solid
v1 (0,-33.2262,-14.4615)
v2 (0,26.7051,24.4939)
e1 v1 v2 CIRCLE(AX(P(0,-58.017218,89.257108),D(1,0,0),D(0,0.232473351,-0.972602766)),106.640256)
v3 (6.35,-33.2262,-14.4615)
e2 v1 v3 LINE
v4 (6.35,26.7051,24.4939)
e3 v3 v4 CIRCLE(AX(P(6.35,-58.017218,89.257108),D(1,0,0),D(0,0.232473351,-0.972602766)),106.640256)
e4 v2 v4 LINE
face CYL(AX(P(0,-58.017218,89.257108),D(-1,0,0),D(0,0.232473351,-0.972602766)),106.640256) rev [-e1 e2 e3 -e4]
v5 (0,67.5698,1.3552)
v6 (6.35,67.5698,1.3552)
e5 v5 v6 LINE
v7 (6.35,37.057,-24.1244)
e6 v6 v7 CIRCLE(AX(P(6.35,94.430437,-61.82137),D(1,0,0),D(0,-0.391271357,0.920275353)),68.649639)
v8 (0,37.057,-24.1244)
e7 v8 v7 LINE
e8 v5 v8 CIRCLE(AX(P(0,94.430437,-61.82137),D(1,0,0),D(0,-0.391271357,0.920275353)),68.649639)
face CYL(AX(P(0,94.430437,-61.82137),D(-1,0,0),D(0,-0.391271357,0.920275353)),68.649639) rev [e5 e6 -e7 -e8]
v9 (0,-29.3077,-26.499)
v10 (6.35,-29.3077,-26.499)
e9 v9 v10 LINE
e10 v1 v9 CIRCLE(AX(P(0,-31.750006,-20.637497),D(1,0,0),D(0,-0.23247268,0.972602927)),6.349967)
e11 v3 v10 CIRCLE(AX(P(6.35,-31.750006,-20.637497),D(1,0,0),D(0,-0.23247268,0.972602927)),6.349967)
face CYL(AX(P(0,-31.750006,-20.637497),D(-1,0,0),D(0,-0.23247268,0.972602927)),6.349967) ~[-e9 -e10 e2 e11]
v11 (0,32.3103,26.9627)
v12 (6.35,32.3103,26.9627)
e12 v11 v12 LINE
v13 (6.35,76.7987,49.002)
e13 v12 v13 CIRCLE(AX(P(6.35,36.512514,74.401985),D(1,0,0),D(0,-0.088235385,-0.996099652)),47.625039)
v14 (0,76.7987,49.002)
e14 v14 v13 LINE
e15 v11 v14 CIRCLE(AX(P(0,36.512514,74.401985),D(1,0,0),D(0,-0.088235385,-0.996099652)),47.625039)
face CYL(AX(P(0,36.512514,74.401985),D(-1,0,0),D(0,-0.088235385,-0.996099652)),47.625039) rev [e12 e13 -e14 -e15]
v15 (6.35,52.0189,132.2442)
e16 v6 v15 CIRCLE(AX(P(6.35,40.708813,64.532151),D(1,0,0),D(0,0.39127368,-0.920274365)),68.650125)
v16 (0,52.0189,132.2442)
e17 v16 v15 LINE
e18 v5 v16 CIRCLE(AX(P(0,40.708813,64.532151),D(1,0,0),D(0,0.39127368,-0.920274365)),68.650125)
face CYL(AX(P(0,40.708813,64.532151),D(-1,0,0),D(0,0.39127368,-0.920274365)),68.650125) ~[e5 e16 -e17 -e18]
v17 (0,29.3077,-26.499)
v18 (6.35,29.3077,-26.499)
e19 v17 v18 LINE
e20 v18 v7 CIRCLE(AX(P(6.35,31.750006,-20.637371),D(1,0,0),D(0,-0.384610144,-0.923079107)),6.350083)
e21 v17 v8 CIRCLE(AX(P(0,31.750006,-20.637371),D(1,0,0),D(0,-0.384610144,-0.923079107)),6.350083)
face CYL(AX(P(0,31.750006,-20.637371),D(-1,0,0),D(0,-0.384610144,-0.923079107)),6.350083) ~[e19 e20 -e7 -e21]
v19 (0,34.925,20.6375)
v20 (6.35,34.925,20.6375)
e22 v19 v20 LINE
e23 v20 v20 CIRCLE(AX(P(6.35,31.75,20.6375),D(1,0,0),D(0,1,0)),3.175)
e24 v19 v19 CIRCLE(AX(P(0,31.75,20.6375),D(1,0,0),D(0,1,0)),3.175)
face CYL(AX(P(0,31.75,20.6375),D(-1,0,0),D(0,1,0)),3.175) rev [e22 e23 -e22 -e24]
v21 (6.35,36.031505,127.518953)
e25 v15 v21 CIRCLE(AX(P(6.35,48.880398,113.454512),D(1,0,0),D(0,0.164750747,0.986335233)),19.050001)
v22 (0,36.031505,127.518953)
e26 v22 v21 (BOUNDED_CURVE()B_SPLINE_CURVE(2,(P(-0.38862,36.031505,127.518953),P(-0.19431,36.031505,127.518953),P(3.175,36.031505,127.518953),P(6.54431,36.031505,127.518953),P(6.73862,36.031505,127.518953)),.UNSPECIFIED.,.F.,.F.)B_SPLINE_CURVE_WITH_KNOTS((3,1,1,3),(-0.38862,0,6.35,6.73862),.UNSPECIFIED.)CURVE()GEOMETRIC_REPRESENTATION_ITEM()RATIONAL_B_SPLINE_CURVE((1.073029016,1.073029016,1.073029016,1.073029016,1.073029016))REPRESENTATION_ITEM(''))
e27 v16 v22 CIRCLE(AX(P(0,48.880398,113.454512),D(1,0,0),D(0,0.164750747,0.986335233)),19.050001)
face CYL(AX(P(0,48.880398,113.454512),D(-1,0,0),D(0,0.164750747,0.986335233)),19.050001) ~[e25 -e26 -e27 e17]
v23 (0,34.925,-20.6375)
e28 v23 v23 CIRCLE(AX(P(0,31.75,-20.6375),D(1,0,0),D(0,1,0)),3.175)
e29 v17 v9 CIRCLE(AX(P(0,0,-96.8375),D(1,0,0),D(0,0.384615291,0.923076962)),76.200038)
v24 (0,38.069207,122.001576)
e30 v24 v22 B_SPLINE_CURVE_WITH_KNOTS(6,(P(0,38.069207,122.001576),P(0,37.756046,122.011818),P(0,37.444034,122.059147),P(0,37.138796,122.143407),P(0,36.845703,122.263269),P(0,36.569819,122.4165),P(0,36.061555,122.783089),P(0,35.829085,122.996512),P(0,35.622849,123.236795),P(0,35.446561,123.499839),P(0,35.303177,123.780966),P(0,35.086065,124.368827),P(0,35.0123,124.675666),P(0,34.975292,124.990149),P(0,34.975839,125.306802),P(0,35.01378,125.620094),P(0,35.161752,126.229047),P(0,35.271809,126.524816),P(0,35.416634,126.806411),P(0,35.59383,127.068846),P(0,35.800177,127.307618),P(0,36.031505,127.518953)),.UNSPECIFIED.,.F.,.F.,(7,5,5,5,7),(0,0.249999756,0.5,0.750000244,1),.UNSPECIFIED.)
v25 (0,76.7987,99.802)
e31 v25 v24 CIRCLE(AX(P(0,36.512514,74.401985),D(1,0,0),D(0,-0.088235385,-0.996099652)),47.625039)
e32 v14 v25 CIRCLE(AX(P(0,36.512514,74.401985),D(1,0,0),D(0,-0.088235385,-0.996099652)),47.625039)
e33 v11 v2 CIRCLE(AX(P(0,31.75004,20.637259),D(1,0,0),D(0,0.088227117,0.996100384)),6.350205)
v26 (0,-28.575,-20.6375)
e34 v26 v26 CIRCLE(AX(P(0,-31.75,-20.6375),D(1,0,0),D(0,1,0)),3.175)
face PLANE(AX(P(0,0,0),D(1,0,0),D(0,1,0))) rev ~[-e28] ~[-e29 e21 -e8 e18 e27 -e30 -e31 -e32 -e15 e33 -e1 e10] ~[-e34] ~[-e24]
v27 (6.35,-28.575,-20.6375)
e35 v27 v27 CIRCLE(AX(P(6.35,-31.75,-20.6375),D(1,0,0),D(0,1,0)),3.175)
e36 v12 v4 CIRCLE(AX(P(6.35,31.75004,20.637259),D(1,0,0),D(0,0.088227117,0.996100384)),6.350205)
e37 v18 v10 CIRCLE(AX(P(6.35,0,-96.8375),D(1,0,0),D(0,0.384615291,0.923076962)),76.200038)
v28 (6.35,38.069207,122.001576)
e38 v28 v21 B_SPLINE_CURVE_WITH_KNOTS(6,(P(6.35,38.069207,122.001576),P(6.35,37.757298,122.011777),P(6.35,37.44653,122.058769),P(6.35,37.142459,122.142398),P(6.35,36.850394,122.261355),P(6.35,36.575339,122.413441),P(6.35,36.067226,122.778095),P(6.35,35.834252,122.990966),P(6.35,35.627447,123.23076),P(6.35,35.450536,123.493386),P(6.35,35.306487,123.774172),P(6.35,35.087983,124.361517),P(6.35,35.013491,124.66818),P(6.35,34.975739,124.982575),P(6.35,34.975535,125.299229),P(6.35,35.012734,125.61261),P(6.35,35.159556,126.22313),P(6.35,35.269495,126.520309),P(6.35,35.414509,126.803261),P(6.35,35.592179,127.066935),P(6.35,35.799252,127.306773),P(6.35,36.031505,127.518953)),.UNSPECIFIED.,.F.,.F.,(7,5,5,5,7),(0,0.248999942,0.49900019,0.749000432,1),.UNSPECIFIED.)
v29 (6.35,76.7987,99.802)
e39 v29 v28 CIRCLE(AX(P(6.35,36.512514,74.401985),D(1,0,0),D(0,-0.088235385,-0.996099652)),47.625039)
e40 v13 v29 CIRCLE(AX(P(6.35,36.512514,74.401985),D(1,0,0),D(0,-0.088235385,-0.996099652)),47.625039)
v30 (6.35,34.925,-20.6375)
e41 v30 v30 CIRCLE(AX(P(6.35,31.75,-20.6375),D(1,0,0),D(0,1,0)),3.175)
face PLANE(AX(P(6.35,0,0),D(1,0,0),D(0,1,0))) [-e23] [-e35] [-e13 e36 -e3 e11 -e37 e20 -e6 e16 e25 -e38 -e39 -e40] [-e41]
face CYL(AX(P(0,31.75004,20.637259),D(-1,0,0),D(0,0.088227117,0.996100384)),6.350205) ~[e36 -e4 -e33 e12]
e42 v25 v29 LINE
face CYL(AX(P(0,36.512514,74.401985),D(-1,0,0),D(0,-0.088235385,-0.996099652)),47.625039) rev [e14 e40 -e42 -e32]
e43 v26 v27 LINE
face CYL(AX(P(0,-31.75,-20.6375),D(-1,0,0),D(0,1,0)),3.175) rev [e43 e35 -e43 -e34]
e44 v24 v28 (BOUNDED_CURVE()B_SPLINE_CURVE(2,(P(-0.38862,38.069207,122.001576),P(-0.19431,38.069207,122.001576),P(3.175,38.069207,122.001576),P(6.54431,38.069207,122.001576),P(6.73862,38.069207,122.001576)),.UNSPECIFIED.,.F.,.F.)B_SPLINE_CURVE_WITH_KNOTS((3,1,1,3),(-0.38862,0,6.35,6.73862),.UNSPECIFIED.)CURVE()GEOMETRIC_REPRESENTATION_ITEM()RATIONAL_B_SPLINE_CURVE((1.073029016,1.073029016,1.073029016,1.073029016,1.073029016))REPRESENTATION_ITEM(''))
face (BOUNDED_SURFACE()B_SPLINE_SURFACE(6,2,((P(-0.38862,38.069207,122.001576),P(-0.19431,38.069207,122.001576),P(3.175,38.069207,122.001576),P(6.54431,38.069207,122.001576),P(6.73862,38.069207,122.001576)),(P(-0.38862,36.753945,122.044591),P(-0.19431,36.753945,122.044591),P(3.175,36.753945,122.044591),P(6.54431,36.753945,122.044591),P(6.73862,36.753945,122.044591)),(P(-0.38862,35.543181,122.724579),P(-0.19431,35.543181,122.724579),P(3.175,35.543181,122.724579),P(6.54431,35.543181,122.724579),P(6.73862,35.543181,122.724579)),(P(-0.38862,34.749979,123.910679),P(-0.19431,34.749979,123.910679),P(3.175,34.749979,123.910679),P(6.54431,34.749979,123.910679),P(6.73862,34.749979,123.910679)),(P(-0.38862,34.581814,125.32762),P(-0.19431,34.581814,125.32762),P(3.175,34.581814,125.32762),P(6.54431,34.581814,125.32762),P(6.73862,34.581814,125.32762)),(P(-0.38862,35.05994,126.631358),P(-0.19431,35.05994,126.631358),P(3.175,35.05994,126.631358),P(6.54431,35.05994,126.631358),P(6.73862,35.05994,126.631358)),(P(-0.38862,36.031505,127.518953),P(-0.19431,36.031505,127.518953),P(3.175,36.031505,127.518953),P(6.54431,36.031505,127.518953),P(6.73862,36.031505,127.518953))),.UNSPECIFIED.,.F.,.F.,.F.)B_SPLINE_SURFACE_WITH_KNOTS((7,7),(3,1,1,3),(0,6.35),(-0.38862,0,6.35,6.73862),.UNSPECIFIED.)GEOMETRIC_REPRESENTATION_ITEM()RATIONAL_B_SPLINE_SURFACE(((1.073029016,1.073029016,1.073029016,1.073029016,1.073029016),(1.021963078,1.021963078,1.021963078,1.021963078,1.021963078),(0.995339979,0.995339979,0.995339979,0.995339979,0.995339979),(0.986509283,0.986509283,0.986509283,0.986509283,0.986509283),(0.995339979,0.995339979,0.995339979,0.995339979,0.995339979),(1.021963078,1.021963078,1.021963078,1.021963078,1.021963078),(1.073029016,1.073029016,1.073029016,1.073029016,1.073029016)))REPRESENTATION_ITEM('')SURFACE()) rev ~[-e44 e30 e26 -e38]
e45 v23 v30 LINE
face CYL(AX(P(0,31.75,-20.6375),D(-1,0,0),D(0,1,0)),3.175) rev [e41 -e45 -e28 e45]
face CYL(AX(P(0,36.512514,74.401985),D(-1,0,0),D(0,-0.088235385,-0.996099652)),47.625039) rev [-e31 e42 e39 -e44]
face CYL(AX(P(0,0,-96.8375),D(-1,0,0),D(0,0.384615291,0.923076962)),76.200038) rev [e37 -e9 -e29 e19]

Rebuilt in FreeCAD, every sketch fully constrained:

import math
import FreeCAD as App
import Part
import Sketcher

V = App.Vector
Q = App.Units.Quantity


def edges_at(feature, points):
    """Names of the edges that pass closest to the given points."""
    edges = feature.Shape.Edges
    near = lambda p: min(range(len(edges)), key=lambda i: edges[i].distToShape(Part.Vertex(*p))[0])
    return sorted({f"Edge{near(p) + 1}" for p in points})

doc = App.newDocument("Part")
body = doc.addObject("PartDesign::Body", "Body")

# Sketch on YZ plane
sketch1 = body.newObject("Sketcher::SketchObject", "Sketch")
sketch1.AttachmentSupport = (doc.getObject("YZ_Plane"), [""])
sketch1.MapMode = "FlatFace"
sketch1.addGeometry(Part.ArcOfCircle(Part.Circle(V(36.5, 74.4, 0), V(0, 0, 1), 47.6), math.radians(-95), math.radians(96)), False)
sketch1.addGeometry(Part.ArcOfCircle(Part.Circle(V(31.8, 20.6, 0), V(0, 0, 1), 6.3), math.radians(85), math.radians(143)), False)
sketch1.addGeometry(Part.ArcOfCircle(Part.Circle(V(-58, 89.3, 0), V(0, 0, 1), 106.6), math.radians(-77), math.radians(-37)), False)
sketch1.addGeometry(Part.ArcOfCircle(Part.Circle(V(-31.8, -20.6, 0), V(0, 0, 1), 6.3), math.radians(103), math.radians(293)), False)
sketch1.addGeometry(Part.ArcOfCircle(Part.Circle(V(0, -96.8, 0), V(0, 0, 1), 76.2), math.radians(67), math.radians(113)), False)
sketch1.addGeometry(Part.ArcOfCircle(Part.Circle(V(31.8, -20.6, 0), V(0, 0, 1), 6.3), math.radians(-113), math.radians(-33)), False)
sketch1.addGeometry(Part.ArcOfCircle(Part.Circle(V(94.4, -61.8, 0), V(0, 0, 1), 68.7), math.radians(113), math.radians(147)), False)
sketch1.addGeometry(Part.ArcOfCircle(Part.Circle(V(40.7, 64.5, 0), V(0, 0, 1), 68.7), math.radians(-67), math.radians(81)), False)
sketch1.addGeometry(Part.ArcOfCircle(Part.Circle(V(48.9, 113.5, 0), V(0, 0, 1), 19.1), math.radians(81), math.radians(154)), False)
sketch1.addGeometry(Part.Circle(V(-31.8, -20.6, 0), V(0, 0, 1), 3.2), False)
sketch1.addGeometry(Part.Circle(V(31.8, -20.6, 0), V(0, 0, 1), 3.2), False)
sketch1.addGeometry(Part.Circle(V(31.8, 20.6, 0), V(0, 0, 1), 3.2), False)
sketch1.addConstraint(Sketcher.Constraint("Tangent", 0, 1, 1, 1))
sketch1.addConstraint(Sketcher.Constraint("Tangent", 1, 2, 2, 2))
sketch1.addConstraint(Sketcher.Constraint("Tangent", 2, 1, 3, 1))
sketch1.addConstraint(Sketcher.Constraint("Tangent", 3, 2, 4, 2))
sketch1.addConstraint(Sketcher.Constraint("Tangent", 4, 1, 5, 1))
sketch1.addConstraint(Sketcher.Constraint("Tangent", 5, 2, 6, 2))
sketch1.addConstraint(Sketcher.Constraint("Tangent", 6, 1, 7, 1))
sketch1.addConstraint(Sketcher.Constraint("Tangent", 7, 2, 8, 1))
sketch1.addConstraint(Sketcher.Constraint("Coincident", 8, 2, 0, 2))
sketch1.addConstraint(Sketcher.Constraint("Coincident", 9, 3, 3, 3))
sketch1.addConstraint(Sketcher.Constraint("Coincident", 10, 3, 5, 3))
sketch1.addConstraint(Sketcher.Constraint("Coincident", 11, 3, 1, 3))
sketch1.addConstraint(Sketcher.Constraint("Equal", 1, 3))
sketch1.addConstraint(Sketcher.Constraint("Equal", 3, 5))
sketch1.addConstraint(Sketcher.Constraint("Equal", 6, 7))
sketch1.addConstraint(Sketcher.Constraint("Equal", 9, 10))
sketch1.addConstraint(Sketcher.Constraint("Equal", 10, 11))
sketch1.addConstraint(Sketcher.Constraint("Symmetric", 1, 3, 3, 3, -1, 1))
sketch1.addConstraint(Sketcher.Constraint("Symmetric", 3, 3, 5, 3, -2))
sketch1.addConstraint(Sketcher.Constraint("Vertical", 11, 3, 8, 2))
sketch1.addConstraint(Sketcher.Constraint("Diameter", 9, Q("0.25 in")))
sketch1.addConstraint(Sketcher.Constraint("Radius", 1, Q("0.25 in")))
sketch1.addConstraint(Sketcher.Constraint("Radius", 8, Q("0.75 in")))
sketch1.addConstraint(Sketcher.Constraint("Radius", 0, Q("1.875 in")))
sketch1.addConstraint(Sketcher.Constraint("Radius", 4, Q("3 in")))
sketch1.addConstraint(Sketcher.Constraint("DistanceX", 3, 3, 1, 3, Q("2.5 in")))
sketch1.addConstraint(Sketcher.Constraint("DistanceX", 1, 3, 0, 3, Q("0.1875 in")))
sketch1.addConstraint(Sketcher.Constraint("DistanceY", 3, 3, 1, 3, Q("1.625 in")))
sketch1.addConstraint(Sketcher.Constraint("Radius", 2, Q("106.6405 mm")))
sketch1.addConstraint(Sketcher.Constraint("Radius", 6, Q("68.6501 mm")))
sketch1.addConstraint(Sketcher.Constraint("DistanceY", 0, 3, 8, 3, Q("1.5375 in")))
sketch1.addConstraint(Sketcher.Constraint("DistanceY", 0, 1, 7, 3, Q("1.4791 in")))
pad1 = body.newObject("PartDesign::Pad", "Pad")
pad1.Profile = sketch1
pad1.Length = Q("0.25 in")
doc.recompute()

fillet = body.newObject("PartDesign::Fillet", "Fillet")
fillet.Base = (pad1, edges_at(pad1, [(3.175, 31.75, 121.788)]))
fillet.Radius = Q("0.125 in")

doc.recompute()
